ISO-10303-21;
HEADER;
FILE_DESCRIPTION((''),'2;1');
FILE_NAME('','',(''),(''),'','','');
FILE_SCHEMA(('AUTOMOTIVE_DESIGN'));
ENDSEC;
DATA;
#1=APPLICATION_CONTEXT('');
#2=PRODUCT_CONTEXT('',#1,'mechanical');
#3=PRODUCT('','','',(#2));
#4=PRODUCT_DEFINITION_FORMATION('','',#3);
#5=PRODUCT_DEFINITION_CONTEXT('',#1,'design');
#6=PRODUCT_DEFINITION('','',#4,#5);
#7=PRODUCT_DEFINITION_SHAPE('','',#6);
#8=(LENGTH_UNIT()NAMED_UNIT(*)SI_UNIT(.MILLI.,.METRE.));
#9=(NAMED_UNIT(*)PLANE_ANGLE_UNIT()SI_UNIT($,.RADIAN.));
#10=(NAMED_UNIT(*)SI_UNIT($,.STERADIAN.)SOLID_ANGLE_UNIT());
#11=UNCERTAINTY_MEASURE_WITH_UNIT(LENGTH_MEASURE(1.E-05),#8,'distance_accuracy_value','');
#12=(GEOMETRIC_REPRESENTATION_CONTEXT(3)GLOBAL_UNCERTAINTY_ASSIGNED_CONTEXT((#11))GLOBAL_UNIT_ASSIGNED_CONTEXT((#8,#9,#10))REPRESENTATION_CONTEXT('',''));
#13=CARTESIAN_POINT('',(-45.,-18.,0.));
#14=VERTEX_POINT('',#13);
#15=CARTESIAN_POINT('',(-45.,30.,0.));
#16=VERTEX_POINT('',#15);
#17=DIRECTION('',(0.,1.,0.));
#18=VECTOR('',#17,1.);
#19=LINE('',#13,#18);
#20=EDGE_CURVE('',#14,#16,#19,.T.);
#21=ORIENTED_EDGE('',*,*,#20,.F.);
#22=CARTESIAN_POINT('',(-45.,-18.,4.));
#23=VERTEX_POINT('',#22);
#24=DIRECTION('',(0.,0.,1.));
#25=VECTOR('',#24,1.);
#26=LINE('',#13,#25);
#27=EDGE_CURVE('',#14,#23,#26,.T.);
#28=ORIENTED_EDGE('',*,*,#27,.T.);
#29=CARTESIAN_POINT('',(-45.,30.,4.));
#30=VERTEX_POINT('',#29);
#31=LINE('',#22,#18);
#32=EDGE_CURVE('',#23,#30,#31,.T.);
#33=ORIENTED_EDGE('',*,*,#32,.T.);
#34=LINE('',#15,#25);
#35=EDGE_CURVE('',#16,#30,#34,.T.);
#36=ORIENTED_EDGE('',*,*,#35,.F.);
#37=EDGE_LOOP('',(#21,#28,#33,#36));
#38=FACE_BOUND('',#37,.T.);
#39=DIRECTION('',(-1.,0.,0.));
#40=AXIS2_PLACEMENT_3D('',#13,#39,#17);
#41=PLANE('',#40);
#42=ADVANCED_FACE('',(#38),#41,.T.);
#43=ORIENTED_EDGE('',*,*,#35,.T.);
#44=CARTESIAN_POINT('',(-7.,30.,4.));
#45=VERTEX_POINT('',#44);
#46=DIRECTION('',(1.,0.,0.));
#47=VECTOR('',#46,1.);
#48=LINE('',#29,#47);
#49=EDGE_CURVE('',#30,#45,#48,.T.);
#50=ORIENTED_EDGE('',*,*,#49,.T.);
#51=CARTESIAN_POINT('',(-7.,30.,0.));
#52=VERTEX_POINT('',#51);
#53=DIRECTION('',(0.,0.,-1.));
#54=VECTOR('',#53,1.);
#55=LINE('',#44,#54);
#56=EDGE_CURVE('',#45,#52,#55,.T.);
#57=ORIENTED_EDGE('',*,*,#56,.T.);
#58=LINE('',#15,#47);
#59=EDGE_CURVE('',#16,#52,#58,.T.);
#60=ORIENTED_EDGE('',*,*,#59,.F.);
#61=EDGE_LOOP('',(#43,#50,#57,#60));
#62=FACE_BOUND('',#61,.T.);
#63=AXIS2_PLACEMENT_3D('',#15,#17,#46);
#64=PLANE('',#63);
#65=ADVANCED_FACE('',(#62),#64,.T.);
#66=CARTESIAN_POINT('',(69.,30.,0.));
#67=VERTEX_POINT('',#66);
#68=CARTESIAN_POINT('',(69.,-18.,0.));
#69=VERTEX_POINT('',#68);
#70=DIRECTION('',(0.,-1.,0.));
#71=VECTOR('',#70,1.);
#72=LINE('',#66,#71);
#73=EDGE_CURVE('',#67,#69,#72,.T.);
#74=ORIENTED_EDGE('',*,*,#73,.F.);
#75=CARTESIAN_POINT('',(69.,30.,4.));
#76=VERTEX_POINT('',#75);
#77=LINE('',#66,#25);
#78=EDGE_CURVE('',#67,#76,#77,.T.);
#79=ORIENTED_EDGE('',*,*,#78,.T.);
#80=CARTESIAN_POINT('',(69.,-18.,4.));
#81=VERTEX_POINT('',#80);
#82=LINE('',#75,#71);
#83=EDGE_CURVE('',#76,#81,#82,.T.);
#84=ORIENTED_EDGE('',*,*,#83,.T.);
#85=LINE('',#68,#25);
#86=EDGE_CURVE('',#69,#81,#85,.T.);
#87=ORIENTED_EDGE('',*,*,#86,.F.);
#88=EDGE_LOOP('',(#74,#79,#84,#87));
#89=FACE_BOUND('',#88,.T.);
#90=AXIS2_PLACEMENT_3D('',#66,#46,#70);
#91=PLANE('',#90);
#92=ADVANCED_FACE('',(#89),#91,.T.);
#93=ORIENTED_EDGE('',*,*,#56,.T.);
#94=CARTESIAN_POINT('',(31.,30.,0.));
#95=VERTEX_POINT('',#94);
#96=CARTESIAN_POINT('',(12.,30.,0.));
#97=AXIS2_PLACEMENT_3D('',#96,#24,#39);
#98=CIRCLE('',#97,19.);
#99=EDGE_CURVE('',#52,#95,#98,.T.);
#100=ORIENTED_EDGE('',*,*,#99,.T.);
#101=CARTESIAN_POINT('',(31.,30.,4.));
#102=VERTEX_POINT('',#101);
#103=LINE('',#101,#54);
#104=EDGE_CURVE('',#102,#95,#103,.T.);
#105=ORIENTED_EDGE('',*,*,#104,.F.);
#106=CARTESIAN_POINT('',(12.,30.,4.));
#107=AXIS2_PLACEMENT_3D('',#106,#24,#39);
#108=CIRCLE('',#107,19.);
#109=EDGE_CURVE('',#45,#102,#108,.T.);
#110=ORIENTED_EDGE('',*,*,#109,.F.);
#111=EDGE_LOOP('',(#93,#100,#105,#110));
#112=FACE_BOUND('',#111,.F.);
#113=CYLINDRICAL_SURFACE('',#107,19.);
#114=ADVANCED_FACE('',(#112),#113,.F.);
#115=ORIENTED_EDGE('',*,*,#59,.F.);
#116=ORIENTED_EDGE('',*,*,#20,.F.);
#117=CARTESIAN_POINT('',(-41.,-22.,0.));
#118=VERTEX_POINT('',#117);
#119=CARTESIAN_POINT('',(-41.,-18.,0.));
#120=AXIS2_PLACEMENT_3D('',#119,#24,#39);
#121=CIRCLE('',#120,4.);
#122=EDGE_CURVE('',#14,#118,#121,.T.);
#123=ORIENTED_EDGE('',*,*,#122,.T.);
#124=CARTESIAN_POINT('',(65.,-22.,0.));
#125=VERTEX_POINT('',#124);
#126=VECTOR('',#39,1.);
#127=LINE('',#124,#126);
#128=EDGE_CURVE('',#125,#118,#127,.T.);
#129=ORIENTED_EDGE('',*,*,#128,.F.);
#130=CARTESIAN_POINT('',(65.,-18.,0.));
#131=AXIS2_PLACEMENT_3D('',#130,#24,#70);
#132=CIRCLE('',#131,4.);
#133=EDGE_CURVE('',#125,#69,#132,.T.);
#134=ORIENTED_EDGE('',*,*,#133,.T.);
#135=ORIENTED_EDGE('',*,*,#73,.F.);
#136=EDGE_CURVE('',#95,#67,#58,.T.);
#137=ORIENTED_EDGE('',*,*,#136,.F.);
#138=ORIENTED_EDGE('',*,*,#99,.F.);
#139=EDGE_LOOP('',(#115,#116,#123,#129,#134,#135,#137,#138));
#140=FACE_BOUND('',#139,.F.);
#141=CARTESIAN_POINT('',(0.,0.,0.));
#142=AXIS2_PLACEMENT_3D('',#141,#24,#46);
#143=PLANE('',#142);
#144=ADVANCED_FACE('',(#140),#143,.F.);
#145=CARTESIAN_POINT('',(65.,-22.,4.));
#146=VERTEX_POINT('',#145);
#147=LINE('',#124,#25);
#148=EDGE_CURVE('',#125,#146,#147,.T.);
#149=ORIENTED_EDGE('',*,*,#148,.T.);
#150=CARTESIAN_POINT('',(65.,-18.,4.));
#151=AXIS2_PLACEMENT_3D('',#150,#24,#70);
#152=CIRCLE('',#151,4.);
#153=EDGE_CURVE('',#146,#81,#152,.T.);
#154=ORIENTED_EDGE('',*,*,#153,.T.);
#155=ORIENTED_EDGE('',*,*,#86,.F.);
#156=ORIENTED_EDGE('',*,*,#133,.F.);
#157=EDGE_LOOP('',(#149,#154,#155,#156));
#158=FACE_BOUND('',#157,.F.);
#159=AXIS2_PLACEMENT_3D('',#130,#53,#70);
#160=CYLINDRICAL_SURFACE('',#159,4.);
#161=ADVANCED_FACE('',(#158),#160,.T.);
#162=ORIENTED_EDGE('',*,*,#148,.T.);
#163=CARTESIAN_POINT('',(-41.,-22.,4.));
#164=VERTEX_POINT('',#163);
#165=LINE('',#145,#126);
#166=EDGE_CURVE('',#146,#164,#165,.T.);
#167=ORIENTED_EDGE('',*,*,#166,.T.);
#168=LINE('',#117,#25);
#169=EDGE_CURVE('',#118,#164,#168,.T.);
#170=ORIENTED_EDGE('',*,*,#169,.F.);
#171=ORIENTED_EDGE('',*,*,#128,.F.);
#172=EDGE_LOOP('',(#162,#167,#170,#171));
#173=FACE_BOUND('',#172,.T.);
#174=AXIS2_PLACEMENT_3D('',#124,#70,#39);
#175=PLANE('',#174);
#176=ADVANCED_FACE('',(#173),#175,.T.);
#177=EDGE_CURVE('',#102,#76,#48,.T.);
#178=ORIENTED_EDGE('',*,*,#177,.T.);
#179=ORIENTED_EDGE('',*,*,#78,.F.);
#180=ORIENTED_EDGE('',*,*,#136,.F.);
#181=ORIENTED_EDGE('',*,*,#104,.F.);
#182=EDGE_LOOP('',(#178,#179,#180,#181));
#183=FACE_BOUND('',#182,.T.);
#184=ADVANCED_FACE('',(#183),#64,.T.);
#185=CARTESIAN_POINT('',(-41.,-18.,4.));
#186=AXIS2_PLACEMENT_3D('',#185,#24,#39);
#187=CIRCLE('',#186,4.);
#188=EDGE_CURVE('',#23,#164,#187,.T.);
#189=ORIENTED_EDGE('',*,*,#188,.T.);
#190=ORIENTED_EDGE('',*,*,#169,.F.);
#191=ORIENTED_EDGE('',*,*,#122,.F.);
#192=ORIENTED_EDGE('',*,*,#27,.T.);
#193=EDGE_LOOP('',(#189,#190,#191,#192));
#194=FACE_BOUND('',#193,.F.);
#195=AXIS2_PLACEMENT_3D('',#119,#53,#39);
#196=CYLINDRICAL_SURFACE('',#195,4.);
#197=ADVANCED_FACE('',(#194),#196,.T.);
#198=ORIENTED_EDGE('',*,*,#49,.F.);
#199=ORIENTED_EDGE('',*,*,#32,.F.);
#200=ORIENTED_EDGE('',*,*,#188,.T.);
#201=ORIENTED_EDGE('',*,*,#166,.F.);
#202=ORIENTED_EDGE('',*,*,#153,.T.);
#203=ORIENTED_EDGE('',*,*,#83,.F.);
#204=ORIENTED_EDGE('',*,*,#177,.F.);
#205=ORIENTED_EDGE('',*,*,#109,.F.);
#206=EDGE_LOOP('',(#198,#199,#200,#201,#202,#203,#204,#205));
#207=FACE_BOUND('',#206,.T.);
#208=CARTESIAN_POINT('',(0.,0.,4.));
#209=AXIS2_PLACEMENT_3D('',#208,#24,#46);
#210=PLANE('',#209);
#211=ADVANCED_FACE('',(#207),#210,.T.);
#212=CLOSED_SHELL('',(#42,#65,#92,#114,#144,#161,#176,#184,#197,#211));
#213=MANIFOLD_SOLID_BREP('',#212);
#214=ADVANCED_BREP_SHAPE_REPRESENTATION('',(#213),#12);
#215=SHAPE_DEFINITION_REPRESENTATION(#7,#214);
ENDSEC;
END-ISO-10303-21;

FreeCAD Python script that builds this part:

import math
import FreeCAD as App
import Part
import Sketcher

V = App.Vector

doc = App.newDocument("Part")
params = doc.addObject("Spreadsheet::Sheet", "Params")
for row, (alias, value) in enumerate([
    ("sketch1_radius", "4 mm"),
    ("sketch1_width", "114 mm"),
    ("pad1_length", "4 mm"),
    ("sketch2_radius", "19 mm"),
], start=1):
    params.set(f"A{row}", alias)
    params.set(f"B{row}", "=" + value)
    params.setAlias(f"B{row}", alias)

body = doc.addObject("PartDesign::Body", "Body")

sketch1 = body.newObject("Sketcher::SketchObject", "Sketch")
sketch1.AttachmentSupport = (doc.getObject("XY_Plane"), [""])
sketch1.MapMode = "FlatFace"
sketch1.addGeometry([
    Part.LineSegment(V(69, 30, 0), V(-45, 30, 0)),
    Part.LineSegment(V(-45, 30, 0), V(-45, -18, 0)),
    Part.ArcOfCircle(Part.Circle(V(-41, -18, 0), V(0, 0, 1), 4), math.radians(180), math.radians(270)),
    Part.LineSegment(V(-41, -22, 0), V(65, -22, 0)),
    Part.ArcOfCircle(Part.Circle(V(65, -18, 0), V(0, 0, 1), 4), math.radians(-90), math.radians(0)),
    Part.LineSegment(V(69, -18, 0), V(69, 30, 0)),
], False)
sketch1.addConstraint([
    Sketcher.Constraint("Coincident", 0, 2, 1, 1),
    Sketcher.Constraint("Tangent", 1, 2, 2, 1),
    Sketcher.Constraint("Tangent", 2, 2, 3, 1),
    Sketcher.Constraint("Tangent", 3, 2, 4, 1),
    Sketcher.Constraint("Tangent", 4, 2, 5, 1),
    Sketcher.Constraint("Coincident", 5, 2, 0, 1),
    Sketcher.Constraint("Horizontal", 0),
    Sketcher.Constraint("Vertical", 1),
    Sketcher.Constraint("Horizontal", 3),
    Sketcher.Constraint("Vertical", 5),
    Sketcher.Constraint("Equal", 2, 4),
    Sketcher.Constraint("Radius", 2, 4.0),
    Sketcher.Constraint("DistanceX", 0, 2, 0, 1, 114.0),
    Sketcher.Constraint("DistanceY", 2, 2, 0, 2, 52.0),
    Sketcher.Constraint("DistanceX", 2, 3, -1, 1, 41.0),
    Sketcher.Constraint("DistanceY", 2, 3, -1, 1, 18.0),
])
sketch1.setExpression("Constraints[11]", "Params.sketch1_radius")
sketch1.setExpression("Constraints[12]", "Params.sketch1_width")
pad1 = body.newObject("PartDesign::Pad", "Pad")
pad1.Profile = sketch1
pad1.setExpression("Length", "Params.pad1_length")

sketch2 = body.newObject("Sketcher::SketchObject", "Sketch001")
sketch2.AttachmentSupport = (doc.getObject("XY_Plane"), [""])
sketch2.MapMode = "FlatFace"
sketch2.AttachmentOffset = App.Placement(V(0, 0, 4), App.Rotation())
sketch2.addGeometry([
    Part.ArcOfCircle(Part.Circle(V(12, 30, 0), V(0, 0, 1), 19), math.radians(180), math.radians(360)),
    Part.LineSegment(V(31, 30, 0), V(-7, 30, 0)),
], False)
sketch2.addConstraint([
    Sketcher.Constraint("Coincident", 0, 1, 1, 2),
    Sketcher.Constraint("Coincident", 1, 1, 0, 2),
    Sketcher.Constraint("Horizontal", 1),
    Sketcher.Constraint("Radius", 0, 19.0),
    Sketcher.Constraint("DistanceX", -1, 1, 0, 3, 12.0),
    Sketcher.Constraint("DistanceY", -1, 1, 0, 3, 30.0),
    Sketcher.Constraint("DistanceY", -1, 1, 0, 1, 30.0),
])
sketch2.setExpression("Constraints[3]", "Params.sketch2_radius")
pocket1 = body.newObject("PartDesign::Pocket", "Pocket")
pocket1.Profile = sketch2
pocket1.Type = "ThroughAll"

doc.recompute()
